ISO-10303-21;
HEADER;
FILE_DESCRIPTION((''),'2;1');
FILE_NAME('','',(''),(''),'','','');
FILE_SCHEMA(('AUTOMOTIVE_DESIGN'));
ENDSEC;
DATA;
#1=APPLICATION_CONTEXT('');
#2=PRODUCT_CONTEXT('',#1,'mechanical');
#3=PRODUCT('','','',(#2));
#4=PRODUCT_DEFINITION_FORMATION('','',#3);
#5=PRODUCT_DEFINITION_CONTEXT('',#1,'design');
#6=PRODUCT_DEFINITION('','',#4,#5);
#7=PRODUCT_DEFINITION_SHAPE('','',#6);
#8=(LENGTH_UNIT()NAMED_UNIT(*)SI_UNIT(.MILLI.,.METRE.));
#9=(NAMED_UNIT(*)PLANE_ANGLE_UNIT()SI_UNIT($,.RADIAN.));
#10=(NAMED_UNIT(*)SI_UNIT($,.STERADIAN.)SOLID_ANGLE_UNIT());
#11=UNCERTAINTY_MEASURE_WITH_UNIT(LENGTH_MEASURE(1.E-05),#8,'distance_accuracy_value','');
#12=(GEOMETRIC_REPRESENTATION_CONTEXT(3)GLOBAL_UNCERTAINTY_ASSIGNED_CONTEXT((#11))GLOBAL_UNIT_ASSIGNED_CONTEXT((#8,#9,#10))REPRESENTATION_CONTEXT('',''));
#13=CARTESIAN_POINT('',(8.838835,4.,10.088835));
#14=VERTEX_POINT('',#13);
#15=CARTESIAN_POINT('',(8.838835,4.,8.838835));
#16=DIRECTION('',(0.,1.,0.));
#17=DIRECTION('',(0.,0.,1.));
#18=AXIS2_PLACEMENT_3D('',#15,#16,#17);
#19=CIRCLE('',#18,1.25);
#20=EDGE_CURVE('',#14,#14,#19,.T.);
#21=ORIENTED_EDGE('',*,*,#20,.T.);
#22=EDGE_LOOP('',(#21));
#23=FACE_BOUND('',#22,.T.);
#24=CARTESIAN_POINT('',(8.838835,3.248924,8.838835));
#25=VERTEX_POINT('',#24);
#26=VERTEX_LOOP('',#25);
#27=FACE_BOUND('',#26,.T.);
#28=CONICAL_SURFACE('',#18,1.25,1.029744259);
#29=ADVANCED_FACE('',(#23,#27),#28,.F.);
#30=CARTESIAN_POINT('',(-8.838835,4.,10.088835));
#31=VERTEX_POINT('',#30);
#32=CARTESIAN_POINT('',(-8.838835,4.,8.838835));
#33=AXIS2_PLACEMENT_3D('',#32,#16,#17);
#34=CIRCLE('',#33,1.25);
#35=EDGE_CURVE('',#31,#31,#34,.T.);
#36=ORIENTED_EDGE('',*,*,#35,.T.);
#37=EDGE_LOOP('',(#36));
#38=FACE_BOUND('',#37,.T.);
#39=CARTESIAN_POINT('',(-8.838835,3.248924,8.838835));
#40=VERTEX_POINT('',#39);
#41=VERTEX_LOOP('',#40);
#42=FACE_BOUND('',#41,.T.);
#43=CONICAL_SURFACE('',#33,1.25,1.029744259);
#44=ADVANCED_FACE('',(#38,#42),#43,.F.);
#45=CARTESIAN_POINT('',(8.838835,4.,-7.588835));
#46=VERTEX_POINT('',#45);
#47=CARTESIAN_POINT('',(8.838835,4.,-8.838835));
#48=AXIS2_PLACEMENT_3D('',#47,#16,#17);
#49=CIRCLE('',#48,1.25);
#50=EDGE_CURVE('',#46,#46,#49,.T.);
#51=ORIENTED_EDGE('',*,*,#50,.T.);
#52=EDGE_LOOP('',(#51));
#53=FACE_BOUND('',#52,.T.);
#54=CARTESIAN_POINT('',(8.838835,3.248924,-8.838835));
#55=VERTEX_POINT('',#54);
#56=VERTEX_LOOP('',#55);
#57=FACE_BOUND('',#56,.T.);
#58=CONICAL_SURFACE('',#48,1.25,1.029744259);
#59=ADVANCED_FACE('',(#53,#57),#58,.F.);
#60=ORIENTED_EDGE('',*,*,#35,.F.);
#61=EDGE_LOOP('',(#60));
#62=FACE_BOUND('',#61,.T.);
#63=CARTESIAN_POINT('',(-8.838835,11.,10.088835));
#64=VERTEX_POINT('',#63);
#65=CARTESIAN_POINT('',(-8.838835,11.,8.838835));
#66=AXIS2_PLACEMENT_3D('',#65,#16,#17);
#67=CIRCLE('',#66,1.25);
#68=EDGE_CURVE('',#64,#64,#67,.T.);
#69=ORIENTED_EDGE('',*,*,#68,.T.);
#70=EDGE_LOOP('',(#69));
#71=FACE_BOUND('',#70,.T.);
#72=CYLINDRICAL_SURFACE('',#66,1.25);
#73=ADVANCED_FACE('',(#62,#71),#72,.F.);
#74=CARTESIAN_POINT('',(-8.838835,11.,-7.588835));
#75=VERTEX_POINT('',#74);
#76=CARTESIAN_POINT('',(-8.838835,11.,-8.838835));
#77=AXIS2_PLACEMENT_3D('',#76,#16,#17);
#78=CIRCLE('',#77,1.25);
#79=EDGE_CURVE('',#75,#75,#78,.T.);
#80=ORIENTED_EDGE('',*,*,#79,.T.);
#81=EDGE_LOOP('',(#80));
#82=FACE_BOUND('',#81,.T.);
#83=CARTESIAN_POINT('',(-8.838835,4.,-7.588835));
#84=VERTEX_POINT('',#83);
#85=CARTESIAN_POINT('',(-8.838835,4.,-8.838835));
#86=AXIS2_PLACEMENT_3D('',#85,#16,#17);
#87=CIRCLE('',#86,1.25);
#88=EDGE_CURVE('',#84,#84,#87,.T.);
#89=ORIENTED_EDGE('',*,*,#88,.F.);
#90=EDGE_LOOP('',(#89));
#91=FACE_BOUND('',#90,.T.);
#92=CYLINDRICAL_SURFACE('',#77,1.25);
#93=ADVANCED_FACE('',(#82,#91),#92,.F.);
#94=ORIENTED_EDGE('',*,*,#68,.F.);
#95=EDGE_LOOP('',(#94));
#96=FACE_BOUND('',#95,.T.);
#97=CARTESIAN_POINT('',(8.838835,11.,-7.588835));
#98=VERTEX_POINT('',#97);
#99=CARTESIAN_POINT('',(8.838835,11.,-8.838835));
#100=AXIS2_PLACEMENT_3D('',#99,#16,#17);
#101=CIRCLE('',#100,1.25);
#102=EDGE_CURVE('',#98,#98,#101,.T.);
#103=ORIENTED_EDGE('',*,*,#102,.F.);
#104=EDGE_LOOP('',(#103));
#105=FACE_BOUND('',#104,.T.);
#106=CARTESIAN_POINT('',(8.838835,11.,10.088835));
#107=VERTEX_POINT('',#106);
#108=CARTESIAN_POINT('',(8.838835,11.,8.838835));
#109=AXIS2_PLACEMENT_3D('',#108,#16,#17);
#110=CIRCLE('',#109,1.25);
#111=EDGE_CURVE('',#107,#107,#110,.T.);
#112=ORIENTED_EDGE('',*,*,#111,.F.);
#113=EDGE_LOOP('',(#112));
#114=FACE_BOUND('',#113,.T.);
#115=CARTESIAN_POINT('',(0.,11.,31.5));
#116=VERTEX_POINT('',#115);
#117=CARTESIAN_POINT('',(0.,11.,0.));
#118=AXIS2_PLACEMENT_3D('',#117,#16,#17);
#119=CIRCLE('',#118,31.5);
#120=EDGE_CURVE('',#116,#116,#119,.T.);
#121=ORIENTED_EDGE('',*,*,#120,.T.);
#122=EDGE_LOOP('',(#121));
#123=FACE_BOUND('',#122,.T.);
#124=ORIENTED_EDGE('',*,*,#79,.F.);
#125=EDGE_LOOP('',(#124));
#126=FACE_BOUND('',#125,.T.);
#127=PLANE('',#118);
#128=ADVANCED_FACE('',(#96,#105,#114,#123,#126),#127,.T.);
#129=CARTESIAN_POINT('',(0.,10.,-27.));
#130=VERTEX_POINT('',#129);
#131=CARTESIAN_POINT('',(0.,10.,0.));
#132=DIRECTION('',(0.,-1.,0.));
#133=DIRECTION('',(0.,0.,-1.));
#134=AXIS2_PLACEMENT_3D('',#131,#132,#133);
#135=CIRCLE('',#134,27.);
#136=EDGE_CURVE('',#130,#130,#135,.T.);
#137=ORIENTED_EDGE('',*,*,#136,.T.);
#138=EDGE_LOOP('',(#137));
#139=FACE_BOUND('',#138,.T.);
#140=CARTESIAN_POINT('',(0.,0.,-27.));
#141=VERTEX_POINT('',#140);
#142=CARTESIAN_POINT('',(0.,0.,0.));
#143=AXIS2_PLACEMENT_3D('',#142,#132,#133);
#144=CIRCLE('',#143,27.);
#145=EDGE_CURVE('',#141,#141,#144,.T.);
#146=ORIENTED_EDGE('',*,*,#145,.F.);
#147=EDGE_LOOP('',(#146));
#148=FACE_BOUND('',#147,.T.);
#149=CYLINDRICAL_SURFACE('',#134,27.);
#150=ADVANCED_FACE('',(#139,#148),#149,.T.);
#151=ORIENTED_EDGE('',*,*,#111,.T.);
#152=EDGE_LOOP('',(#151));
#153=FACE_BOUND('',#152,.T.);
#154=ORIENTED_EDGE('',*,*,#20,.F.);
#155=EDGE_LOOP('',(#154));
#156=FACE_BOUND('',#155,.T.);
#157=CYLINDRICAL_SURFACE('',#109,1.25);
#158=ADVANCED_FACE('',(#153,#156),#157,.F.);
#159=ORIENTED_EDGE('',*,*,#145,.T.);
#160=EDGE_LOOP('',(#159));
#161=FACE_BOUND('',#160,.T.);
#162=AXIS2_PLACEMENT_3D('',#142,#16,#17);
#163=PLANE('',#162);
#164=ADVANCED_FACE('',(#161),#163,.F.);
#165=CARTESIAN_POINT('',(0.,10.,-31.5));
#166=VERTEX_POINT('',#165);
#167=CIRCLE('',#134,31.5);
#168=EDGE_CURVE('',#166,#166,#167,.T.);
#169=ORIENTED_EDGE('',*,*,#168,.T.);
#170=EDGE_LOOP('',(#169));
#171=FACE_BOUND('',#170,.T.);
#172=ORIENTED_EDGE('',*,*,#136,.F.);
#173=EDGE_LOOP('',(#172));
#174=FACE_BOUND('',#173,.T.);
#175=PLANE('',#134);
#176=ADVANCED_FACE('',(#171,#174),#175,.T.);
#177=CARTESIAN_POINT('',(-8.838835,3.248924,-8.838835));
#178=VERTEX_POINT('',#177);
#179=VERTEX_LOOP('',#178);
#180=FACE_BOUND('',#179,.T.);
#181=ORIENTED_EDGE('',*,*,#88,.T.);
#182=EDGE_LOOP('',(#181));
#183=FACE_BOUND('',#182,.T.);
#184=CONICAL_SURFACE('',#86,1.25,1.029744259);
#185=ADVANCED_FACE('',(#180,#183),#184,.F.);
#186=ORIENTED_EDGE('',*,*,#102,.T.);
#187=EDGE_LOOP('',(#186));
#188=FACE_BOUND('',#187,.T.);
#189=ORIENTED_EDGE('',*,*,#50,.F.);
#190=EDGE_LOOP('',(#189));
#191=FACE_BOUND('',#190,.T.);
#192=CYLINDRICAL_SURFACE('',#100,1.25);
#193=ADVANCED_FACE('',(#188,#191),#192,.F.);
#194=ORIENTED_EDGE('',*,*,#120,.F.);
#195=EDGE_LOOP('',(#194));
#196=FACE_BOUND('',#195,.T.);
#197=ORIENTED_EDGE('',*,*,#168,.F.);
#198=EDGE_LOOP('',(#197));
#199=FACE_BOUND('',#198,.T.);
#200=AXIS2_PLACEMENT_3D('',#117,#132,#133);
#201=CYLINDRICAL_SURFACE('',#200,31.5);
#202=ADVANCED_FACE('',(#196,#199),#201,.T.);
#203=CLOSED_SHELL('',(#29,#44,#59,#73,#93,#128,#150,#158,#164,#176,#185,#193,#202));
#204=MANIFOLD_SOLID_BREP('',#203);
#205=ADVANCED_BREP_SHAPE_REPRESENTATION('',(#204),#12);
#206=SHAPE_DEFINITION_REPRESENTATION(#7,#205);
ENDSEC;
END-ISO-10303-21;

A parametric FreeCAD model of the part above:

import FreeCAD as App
import Part
import Sketcher
from FreeCAD import Vector
Q = App.Units.Quantity


def add_polygon(sketch, points):
    """Adds a closed chain of lines whose ends are joined by coincident constraints."""
    first, n = sketch.GeometryCount, len(points)
    for a, b in zip(points, points[1:] + points[:1]):
        sketch.addGeometry(Part.LineSegment(App.Vector(*a, 0), App.Vector(*b, 0)), False)
    for i in range(n):
        sketch.addConstraint(Sketcher.Constraint("Coincident", first + i, 2, first + (i + 1) % n, 1))

doc = App.newDocument("Part")
params = doc.addObject("Spreadsheet::Sheet", "Params")
for row, (alias, value) in enumerate([
    ("sketch1_diameter", "63 mm"),
    ("pad1_length", "11 mm"),
    ("sketch2_diameter", "2.5 mm"),
    ("hole_diameter", "2.5 mm"),
    ("hole_depth", "7 mm"),
    ("sketch3_diameter", "54 mm"),
    ("pocket1_length", "10 mm"),
], start=1):
    params.set(f"A{row}", alias)
    params.set(f"B{row}", "=" + value)
    params.setAlias(f"B{row}", alias)

body = doc.addObject("PartDesign::Body", "Body")

# Sketch on XZ plane
sketch1 = doc.addObject("Sketcher::SketchObject", "Sketch")
body.addObject(sketch1)
sketch1.AttachmentSupport = (doc.XZ_Plane, [""])
sketch1.MapMode = "FlatFace"
sketch1.addGeometry(Part.Circle(Vector(0, 0, 0), Vector(0, 0, 1), 32), False)
sketch1.addConstraint([
    Sketcher.Constraint("Coincident", 0, 3, -1, 1),
    Sketcher.Constraint("Diameter", 0, Q("63 mm")),
])
sketch1.setExpression("Constraints[1]", "Params.sketch1_diameter")
pad1 = doc.addObject("PartDesign::Pad", "Pad")
body.addObject(pad1)
pad1.Profile = sketch1
pad1.setExpression("Length", "Params.pad1_length")
pad1.Reversed = True

# Sketch on XZ plane
sketch2 = doc.addObject("Sketcher::SketchObject", "Sketch001")
body.addObject(sketch2)
sketch2.AttachmentSupport = (doc.XZ_Plane, [""])
sketch2.MapMode = "FlatFace"
sketch2.AttachmentOffset = App.Placement(Vector(0, 0, -11), App.Rotation())
sketch2.addGeometry([
    Part.Circle(Vector(-8.8, -8.8, 0), Vector(0, 0, 1), 1.2),
    Part.Circle(Vector(8.8, -8.8, 0), Vector(0, 0, 1), 1.2),
    Part.Circle(Vector(8.8, 8.8, 0), Vector(0, 0, 1), 1.2),
    Part.Circle(Vector(-8.8, 8.8, 0), Vector(0, 0, 1), 1.2),
], False)
sketch2.addConstraint([
    Sketcher.Constraint("Equal", 0, 1),
    Sketcher.Constraint("Equal", 1, 2),
    Sketcher.Constraint("Equal", 2, 3),
    Sketcher.Constraint("Symmetric", 0, 3, 2, 3, -1, 1),
    Sketcher.Constraint("Symmetric", 1, 3, 3, 3, -1, 1),
    Sketcher.Constraint("Symmetric", 0, 3, 1, 3, -2),
    Sketcher.Constraint("Diameter", 0, Q("2.5 mm")),
    Sketcher.Constraint("DistanceX", 0, 3, 1, 3, Q("17.67767 mm")),
    Sketcher.Constraint("DistanceY", 1, 3, 2, 3, Q("17.67767 mm")),
])
sketch2.setExpression("Constraints[6]", "Params.sketch2_diameter")
doc.recompute()
hole = doc.addObject("PartDesign::Hole", "Hole")
body.addObject(hole)
hole.Profile = sketch2
hole.ThreadType = "None"
hole.setExpression("Diameter", "Params.hole_diameter")
hole.DepthType = "Dimension"
hole.setExpression("Depth", "Params.hole_depth")
hole.DrillPoint = "Angled"
hole.DrillPointAngle = 118
hole.Reversed = True

# Sketch on XZ plane
sketch3 = doc.addObject("Sketcher::SketchObject", "Sketch002")
body.addObject(sketch3)
sketch3.AttachmentSupport = (doc.XZ_Plane, [""])
sketch3.MapMode = "FlatFace"
add_polygon(sketch3, [(-41, 41), (-41, -41), (41, -41), (41, 41)])  # lines 0-3
sketch3.addGeometry(Part.Circle(Vector(0, 0, 0), Vector(0, 0, 1), 27), False)  # 4
sketch3.addConstraint([
    Sketcher.Constraint("Vertical", 0),
    Sketcher.Constraint("Horizontal", 1),
    Sketcher.Constraint("Vertical", 2),
    Sketcher.Constraint("Horizontal", 3),
    Sketcher.Constraint("Coincident", 4, 3, -1, 1),
    Sketcher.Constraint("Symmetric", 0, 2, 2, 2, -1, 1),
    Sketcher.Constraint("Equal", 3, 0),
    Sketcher.Constraint("Diameter", 4, Q("54 mm")),
    Sketcher.Constraint("DistanceX", 1, 1, 1, 2, Q("82.954 mm")),
])
sketch3.setExpression("Constraints[11]", "Params.sketch3_diameter")
pocket1 = doc.addObject("PartDesign::Pocket", "Pocket")
body.addObject(pocket1)
pocket1.Profile = sketch3
pocket1.setExpression("Length", "Params.pocket1_length")

doc.recompute()
